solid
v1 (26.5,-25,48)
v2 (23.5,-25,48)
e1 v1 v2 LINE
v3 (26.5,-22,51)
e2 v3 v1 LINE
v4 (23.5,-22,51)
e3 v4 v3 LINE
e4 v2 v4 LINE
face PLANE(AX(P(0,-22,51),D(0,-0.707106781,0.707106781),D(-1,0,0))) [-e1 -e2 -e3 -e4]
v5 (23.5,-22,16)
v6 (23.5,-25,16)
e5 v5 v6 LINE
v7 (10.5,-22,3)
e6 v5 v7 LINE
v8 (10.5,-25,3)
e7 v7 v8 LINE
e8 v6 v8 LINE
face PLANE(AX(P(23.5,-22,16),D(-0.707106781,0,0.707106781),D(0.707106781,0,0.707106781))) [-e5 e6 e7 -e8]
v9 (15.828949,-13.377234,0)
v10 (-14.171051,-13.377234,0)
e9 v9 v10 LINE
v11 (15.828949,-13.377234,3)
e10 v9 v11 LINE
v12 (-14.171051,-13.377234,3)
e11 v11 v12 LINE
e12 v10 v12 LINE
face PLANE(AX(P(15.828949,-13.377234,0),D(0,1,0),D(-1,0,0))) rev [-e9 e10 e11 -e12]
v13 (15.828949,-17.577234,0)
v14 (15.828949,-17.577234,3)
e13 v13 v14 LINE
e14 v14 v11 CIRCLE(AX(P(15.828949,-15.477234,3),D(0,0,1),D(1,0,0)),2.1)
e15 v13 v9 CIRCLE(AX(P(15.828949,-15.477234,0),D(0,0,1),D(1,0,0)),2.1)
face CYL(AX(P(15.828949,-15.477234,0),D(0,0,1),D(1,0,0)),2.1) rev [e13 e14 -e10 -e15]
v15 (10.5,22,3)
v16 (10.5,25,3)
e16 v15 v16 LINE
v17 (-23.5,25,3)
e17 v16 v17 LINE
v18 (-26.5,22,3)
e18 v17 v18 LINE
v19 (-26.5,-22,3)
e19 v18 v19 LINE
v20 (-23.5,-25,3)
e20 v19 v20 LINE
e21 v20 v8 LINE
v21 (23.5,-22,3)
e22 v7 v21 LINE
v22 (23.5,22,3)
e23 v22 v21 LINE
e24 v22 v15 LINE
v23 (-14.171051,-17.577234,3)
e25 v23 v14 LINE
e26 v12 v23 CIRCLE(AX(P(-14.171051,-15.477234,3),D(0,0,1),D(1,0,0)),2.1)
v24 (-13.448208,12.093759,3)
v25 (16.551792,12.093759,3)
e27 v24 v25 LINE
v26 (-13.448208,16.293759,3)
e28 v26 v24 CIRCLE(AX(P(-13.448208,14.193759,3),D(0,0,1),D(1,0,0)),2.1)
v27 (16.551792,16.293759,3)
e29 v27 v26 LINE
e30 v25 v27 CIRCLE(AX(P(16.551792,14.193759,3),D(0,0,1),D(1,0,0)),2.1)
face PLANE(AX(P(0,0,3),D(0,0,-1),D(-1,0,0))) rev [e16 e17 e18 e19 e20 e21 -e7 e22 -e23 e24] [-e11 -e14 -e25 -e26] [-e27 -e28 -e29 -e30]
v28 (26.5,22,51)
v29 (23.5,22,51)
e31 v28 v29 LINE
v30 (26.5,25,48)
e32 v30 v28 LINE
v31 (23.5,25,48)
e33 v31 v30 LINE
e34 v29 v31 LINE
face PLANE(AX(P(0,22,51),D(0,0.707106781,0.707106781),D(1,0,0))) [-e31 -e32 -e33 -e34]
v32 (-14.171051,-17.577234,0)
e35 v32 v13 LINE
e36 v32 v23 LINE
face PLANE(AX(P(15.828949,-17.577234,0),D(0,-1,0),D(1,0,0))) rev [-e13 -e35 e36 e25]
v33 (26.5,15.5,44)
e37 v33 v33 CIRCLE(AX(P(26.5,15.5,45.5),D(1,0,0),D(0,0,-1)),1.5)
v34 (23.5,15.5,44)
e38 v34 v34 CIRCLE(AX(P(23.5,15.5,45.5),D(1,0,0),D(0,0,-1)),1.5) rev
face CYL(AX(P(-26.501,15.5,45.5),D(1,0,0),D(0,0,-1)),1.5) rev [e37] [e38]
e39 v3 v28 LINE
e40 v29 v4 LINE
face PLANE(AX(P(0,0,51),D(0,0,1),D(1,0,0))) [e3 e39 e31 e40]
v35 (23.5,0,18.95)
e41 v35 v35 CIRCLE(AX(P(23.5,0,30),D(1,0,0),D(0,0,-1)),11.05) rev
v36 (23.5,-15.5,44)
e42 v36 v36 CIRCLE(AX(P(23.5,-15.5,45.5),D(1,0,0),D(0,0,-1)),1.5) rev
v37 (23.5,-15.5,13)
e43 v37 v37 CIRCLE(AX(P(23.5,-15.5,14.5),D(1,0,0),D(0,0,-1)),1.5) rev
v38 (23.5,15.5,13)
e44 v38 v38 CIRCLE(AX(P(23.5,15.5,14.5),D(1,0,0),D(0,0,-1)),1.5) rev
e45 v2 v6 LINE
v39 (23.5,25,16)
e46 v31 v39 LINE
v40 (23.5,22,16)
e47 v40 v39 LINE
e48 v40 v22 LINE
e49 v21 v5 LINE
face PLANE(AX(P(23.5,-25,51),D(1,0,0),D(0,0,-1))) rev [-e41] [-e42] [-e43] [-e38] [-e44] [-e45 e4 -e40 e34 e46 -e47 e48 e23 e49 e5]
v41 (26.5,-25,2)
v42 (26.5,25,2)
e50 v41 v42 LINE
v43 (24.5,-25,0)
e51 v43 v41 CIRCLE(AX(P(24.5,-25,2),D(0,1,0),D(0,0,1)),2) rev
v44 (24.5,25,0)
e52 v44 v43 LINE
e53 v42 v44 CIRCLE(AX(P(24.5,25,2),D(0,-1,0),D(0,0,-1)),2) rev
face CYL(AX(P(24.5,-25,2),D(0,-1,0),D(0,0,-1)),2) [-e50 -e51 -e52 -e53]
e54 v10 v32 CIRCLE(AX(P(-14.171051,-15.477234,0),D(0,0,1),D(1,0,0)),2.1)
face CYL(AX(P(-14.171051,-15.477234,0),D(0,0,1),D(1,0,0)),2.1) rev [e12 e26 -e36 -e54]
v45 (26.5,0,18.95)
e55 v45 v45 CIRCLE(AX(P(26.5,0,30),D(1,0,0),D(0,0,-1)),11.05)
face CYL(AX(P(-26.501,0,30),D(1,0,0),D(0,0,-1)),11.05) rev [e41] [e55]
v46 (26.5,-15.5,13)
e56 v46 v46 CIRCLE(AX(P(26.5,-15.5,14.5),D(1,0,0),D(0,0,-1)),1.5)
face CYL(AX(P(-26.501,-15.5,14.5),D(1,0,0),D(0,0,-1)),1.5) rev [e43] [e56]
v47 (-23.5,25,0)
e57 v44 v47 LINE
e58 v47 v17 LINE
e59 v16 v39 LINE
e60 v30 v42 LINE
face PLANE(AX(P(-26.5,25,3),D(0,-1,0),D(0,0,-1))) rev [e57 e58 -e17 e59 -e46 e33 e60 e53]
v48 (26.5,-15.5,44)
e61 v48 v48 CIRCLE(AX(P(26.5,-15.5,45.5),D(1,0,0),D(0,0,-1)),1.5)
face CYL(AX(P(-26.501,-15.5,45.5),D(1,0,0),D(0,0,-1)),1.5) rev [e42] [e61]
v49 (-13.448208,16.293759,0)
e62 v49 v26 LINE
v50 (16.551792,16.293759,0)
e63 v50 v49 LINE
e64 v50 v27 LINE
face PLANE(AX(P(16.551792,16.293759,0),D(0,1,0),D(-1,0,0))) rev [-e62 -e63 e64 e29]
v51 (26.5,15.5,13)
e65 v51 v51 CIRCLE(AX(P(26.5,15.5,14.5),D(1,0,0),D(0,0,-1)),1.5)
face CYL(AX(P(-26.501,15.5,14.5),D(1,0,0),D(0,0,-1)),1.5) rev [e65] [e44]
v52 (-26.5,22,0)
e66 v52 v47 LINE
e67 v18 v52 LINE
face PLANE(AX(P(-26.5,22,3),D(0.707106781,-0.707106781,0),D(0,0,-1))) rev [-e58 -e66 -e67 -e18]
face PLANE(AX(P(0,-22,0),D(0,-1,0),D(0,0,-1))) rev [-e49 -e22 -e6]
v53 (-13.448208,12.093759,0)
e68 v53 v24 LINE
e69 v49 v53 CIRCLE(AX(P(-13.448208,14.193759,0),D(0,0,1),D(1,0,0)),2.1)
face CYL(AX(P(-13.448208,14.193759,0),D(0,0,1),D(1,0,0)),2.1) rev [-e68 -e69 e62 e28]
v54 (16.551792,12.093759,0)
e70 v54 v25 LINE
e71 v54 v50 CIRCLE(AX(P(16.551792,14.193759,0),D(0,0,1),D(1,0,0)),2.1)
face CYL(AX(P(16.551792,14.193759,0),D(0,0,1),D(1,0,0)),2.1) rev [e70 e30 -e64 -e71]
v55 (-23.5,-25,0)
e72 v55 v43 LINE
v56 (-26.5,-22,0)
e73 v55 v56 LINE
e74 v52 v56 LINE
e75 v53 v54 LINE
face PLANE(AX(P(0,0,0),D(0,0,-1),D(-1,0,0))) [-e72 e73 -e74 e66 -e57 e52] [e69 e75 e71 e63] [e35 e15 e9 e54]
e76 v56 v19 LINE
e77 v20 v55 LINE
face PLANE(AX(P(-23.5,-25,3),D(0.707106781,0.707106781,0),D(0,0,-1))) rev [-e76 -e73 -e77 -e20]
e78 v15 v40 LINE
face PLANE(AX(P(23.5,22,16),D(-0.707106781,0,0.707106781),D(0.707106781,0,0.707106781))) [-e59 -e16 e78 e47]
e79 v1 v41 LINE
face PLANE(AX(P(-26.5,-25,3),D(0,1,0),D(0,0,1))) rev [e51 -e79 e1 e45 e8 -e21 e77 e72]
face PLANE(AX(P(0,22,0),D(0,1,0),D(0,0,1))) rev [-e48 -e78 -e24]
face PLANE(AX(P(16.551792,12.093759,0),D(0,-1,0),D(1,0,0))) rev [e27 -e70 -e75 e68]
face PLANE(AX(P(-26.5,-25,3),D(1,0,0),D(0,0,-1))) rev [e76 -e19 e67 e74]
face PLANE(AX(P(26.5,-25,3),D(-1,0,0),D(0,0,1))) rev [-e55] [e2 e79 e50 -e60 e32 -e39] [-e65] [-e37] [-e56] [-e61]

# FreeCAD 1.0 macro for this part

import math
import FreeCAD as App
import Part
import Sketcher

V = App.Vector
Q = App.Units.Quantity


def edges_at(feature, points):
    """Names of the edges that pass closest to the given points."""
    edges = feature.Shape.Edges
    near = lambda p: min(range(len(edges)), key=lambda i: edges[i].distToShape(Part.Vertex(*p))[0])
    return sorted({f"Edge{near(p) + 1}" for p in points})


def add_polygon(sketch, points):
    """Adds a closed chain of lines whose ends are joined by coincident constraints."""
    first, n = sketch.GeometryCount, len(points)
    for a, b in zip(points, points[1:] + points[:1]):
        sketch.addGeometry(Part.LineSegment(App.Vector(*a, 0), App.Vector(*b, 0)), False)
    for i in range(n):
        sketch.addConstraint(Sketcher.Constraint("Coincident", first + i, 2, first + (i + 1) % n, 1))

doc = App.newDocument("Part")
body = doc.addObject("PartDesign::Body", "Body")

# Sketch on XY plane
sketch1 = body.newObject("Sketcher::SketchObject", "Sketch")
sketch1.AttachmentSupport = (doc.getObject("XY_Plane"), [""])
sketch1.MapMode = "FlatFace"
add_polygon(sketch1, [(-26.5, 25), (-26.5, -25), (26.5, -25), (26.5, 25)])  # lines 0-3
sketch1.addConstraint([
    Sketcher.Constraint("Vertical", 0),
    Sketcher.Constraint("Horizontal", 1),
    Sketcher.Constraint("Vertical", 2),
    Sketcher.Constraint("Horizontal", 3),
    Sketcher.Constraint("Symmetric", 0, 2, 2, 2, -1, 1),
    Sketcher.Constraint("DistanceX", 1, 1, 1, 2, Q("53 mm")),
    Sketcher.Constraint("DistanceY", 0, 2, 0, 1, Q("50 mm")),
])
pad1 = body.newObject("PartDesign::Pad", "Pad")
pad1.Profile = sketch1
pad1.Length = 3

# Sketch on XY plane
sketch2 = body.newObject("Sketcher::SketchObject", "Sketch001")
sketch2.AttachmentSupport = (doc.getObject("XY_Plane"), [""])
sketch2.MapMode = "FlatFace"
sketch2.AttachmentOffset = App.Placement(V(0, 0, 3), App.Rotation())
add_polygon(sketch2, [(23.5, 25), (23.5, -25), (26.5, -25), (26.5, 25)])  # lines 0-3
sketch2.addConstraint([
    Sketcher.Constraint("Vertical", 0),
    Sketcher.Constraint("Horizontal", 1),
    Sketcher.Constraint("Vertical", 2),
    Sketcher.Constraint("Horizontal", 3),
    Sketcher.Constraint("DistanceX", 1, 1, 1, 2, Q("3 mm")),
    Sketcher.Constraint("DistanceY", 0, 2, 0, 1, Q("50 mm")),
    Sketcher.Constraint("DistanceY", 0, 2, -1, 1, Q("25 mm")),
    Sketcher.Constraint("DistanceX", -1, 1, 0, 2, Q("23.5 mm")),
])
pad2 = body.newObject("PartDesign::Pad", "Pad001")
pad2.Profile = sketch2
pad2.Length = 48
doc.recompute()

fillet = body.newObject("PartDesign::Fillet", "Fillet")
fillet.Base = (pad2, edges_at(pad2, [(26.5, 0, 0)]))
fillet.Radius = 2
doc.recompute()

chamfer = body.newObject("PartDesign::Chamfer", "Chamfer")
chamfer.Base = (fillet, edges_at(fillet, [(25, -25, 51), (-26.5, -25, 1.5), (-26.5, 25, 1.5)]))
chamfer.Size = 3
doc.recompute()

chamfer2 = body.newObject("PartDesign::Chamfer", "Chamfer001")
chamfer2.Base = (chamfer, edges_at(chamfer, [(25, 25, 51)]))
chamfer2.Size = 3

# Sketch on YZ plane
sketch3 = body.newObject("Sketcher::SketchObject", "Sketch002")
sketch3.AttachmentSupport = (doc.getObject("YZ_Plane"), [""])
sketch3.MapMode = "FlatFace"
sketch3.AttachmentOffset = App.Placement(V(0, 0, 26.5), App.Rotation())
sketch3.addGeometry(Part.Circle(V(0, 30, 0), V(0, 0, 1), 11.05), False)
sketch3.addConstraint([
    Sketcher.Constraint("PointOnObject", 0, 3, -2),
    Sketcher.Constraint("Diameter", 0, Q("22.1 mm")),
    Sketcher.Constraint("DistanceY", -1, 1, 0, 3, Q("30 mm")),
])
pocket1 = body.newObject("PartDesign::Pocket", "Pocket")
pocket1.Profile = sketch3
pocket1.Type = "UpToFirst"

# Sketch on YZ plane
sketch4 = body.newObject("Sketcher::SketchObject", "Sketch003")
sketch4.AttachmentSupport = (doc.getObject("YZ_Plane"), [""])
sketch4.MapMode = "FlatFace"
sketch4.AttachmentOffset = App.Placement(V(0, 0, 26.5), App.Rotation())
sketch4.addGeometry(Part.Circle(V(15.5, 45.5, 0), V(0, 0, 1), 1.5), False)
sketch4.addConstraint([
    Sketcher.Constraint("Diameter", 0, Q("3 mm")),
    Sketcher.Constraint("DistanceX", -1, 1, 0, 3, Q("15.5 mm")),
    Sketcher.Constraint("DistanceY", -1, 1, 0, 3, Q("45.5 mm")),
])
pocket2 = body.newObject("PartDesign::Pocket", "Pocket001")
pocket2.Profile = sketch4
pocket2.Type = "UpToFirst"

# Sketch on YZ plane
sketch5 = body.newObject("Sketcher::SketchObject", "Sketch004")
sketch5.AttachmentSupport = (doc.getObject("YZ_Plane"), [""])
sketch5.MapMode = "FlatFace"
sketch5.AttachmentOffset = App.Placement(V(0, 0, 26.5), App.Rotation())
sketch5.addGeometry(Part.Circle(V(-15.5, 45.5, 0), V(0, 0, 1), 1.5), False)
sketch5.addConstraint([
    Sketcher.Constraint("Diameter", 0, Q("3 mm")),
    Sketcher.Constraint("DistanceX", 0, 3, -1, 1, Q("15.5 mm")),
    Sketcher.Constraint("DistanceY", -1, 1, 0, 3, Q("45.5 mm")),
])
pocket3 = body.newObject("PartDesign::Pocket", "Pocket002")
pocket3.Profile = sketch5
pocket3.Type = "UpToFirst"

# Sketch on YZ plane
sketch6 = body.newObject("Sketcher::SketchObject", "Sketch005")
sketch6.AttachmentSupport = (doc.getObject("YZ_Plane"), [""])
sketch6.MapMode = "FlatFace"
sketch6.AttachmentOffset = App.Placement(V(0, 0, 26.5), App.Rotation())
sketch6.addGeometry(Part.Circle(V(-15.5, 14.5, 0), V(0, 0, 1), 1.5), False)
sketch6.addConstraint([
    Sketcher.Constraint("Diameter", 0, Q("3 mm")),
    Sketcher.Constraint("DistanceX", 0, 3, -1, 1, Q("15.5 mm")),
    Sketcher.Constraint("DistanceY", -1, 1, 0, 3, Q("14.5 mm")),
])
pocket4 = body.newObject("PartDesign::Pocket", "Pocket003")
pocket4.Profile = sketch6
pocket4.Type = "UpToFirst"

# Sketch on YZ plane
sketch7 = body.newObject("Sketcher::SketchObject", "Sketch006")
sketch7.AttachmentSupport = (doc.getObject("YZ_Plane"), [""])
sketch7.MapMode = "FlatFace"
sketch7.AttachmentOffset = App.Placement(V(0, 0, 26.5), App.Rotation())
sketch7.addGeometry(Part.Circle(V(15.5, 14.5, 0), V(0, 0, 1), 1.5), False)
sketch7.addConstraint([
    Sketcher.Constraint("Diameter", 0, Q("3 mm")),
    Sketcher.Constraint("DistanceX", -1, 1, 0, 3, Q("15.5 mm")),
    Sketcher.Constraint("DistanceY", -1, 1, 0, 3, Q("14.5 mm")),
])
pocket5 = body.newObject("PartDesign::Pocket", "Pocket004")
pocket5.Profile = sketch7
pocket5.Type = "UpToFirst"

# Sketch on XZ plane
sketch8 = body.newObject("Sketcher::SketchObject", "Sketch007")
sketch8.AttachmentSupport = (doc.getObject("XZ_Plane"), [""])
sketch8.MapMode = "FlatFace"
sketch8.AttachmentOffset = App.Placement(V(0, 0, -25), App.Rotation())
add_polygon(sketch8, [(10.5, 3), (23.5, 16), (23.5, 3)])  # lines 0-2
sketch8.addConstraint([
    Sketcher.Constraint("Vertical", 1),
    Sketcher.Constraint("Horizontal", 2),
    Sketcher.Constraint("Equal", 2, 1),
    Sketcher.Constraint("DistanceX", 2, 2, 2, 1, Q("13 mm")),
    Sketcher.Constraint("DistanceY", -1, 1, 0, 2, Q("16 mm")),
    Sketcher.Constraint("DistanceX", -1, 1, 0, 2, Q("23.5 mm")),
])
pad3 = body.newObject("PartDesign::Pad", "Pad002")
pad3.Profile = sketch8
pad3.Length = 3

# Sketch on XZ plane
sketch9 = body.newObject("Sketcher::SketchObject", "Sketch008")
sketch9.AttachmentSupport = (doc.getObject("XZ_Plane"), [""])
sketch9.MapMode = "FlatFace"
sketch9.AttachmentOffset = App.Placement(V(0, 0, 25), App.Rotation())
add_polygon(sketch9, [(23.5, 3), (23.5, 16), (10.5, 3)])  # lines 0-2
sketch9.addConstraint([
    Sketcher.Constraint("Vertical", 0),
    Sketcher.Constraint("Horizontal", 2),
    Sketcher.Constraint("Equal", 2, 0),
    Sketcher.Constraint("DistanceX", 2, 1, 2, 2, Q("13 mm")),
    Sketcher.Constraint("DistanceY", -1, 1, 0, 2, Q("16 mm")),
    Sketcher.Constraint("DistanceX", -1, 1, 0, 2, Q("23.5 mm")),
])
pad4 = body.newObject("PartDesign::Pad", "Pad003")
pad4.Profile = sketch9
pad4.Length = 3
pad4.Reversed = True

# Sketch on XY plane
sketch10 = body.newObject("Sketcher::SketchObject", "Sketch009")
sketch10.AttachmentSupport = (doc.getObject("XY_Plane"), [""])
sketch10.MapMode = "FlatFace"
sketch10.AttachmentOffset = App.Placement(V(0, 0, 3), App.Rotation())
sketch10.addGeometry([
    Part.LineSegment(V(-13.448208, 12.093759, 0), V(16.551792, 12.093759, 0)),  # 0
    Part.ArcOfCircle(Part.Circle(V(16.551792, 14.193759, 0), V(0, 0, 1), 2.1), math.radians(-90), math.radians(90)),  # 1
    Part.LineSegment(V(16.551792, 16.293759, 0), V(-13.448208, 16.293759, 0)),  # 2
    Part.ArcOfCircle(Part.Circle(V(-13.448208, 14.193759, 0), V(0, 0, 1), 2.1), math.radians(90), math.radians(270)),  # 3
    Part.LineSegment(V(-14.171051, -17.577234, 0), V(15.828949, -17.577234, 0)),  # 4
    Part.ArcOfCircle(Part.Circle(V(15.828949, -15.477234, 0), V(0, 0, 1), 2.1), math.radians(-90), math.radians(90)),  # 5
    Part.LineSegment(V(15.828949, -13.377234, 0), V(-14.171051, -13.377234, 0)),  # 6
    Part.ArcOfCircle(Part.Circle(V(-14.171051, -15.477234, 0), V(0, 0, 1), 2.1), math.radians(90), math.radians(270)),  # 7
], False)
sketch10.addConstraint([
    Sketcher.Constraint("Tangent", 0, 2, 1, 1),
    Sketcher.Constraint("Tangent", 1, 2, 2, 1),
    Sketcher.Constraint("Tangent", 2, 2, 3, 1),
    Sketcher.Constraint("Tangent", 3, 2, 0, 1),
    Sketcher.Constraint("Tangent", 4, 2, 5, 1),
    Sketcher.Constraint("Tangent", 5, 2, 6, 1),
    Sketcher.Constraint("Tangent", 6, 2, 7, 1),
    Sketcher.Constraint("Tangent", 7, 2, 4, 1),
    Sketcher.Constraint("Horizontal", 0),
    Sketcher.Constraint("Horizontal", 2),
    Sketcher.Constraint("Horizontal", 4),
    Sketcher.Constraint("Horizontal", 6),
    Sketcher.Constraint("Equal", 3, 5),
    Sketcher.Constraint("Equal", 2, 4),
    Sketcher.Constraint("Radius", 1, Q("2.1 mm")),
    Sketcher.Constraint("DistanceX", 0, 1, 0, 2, Q("30 mm")),
    Sketcher.Constraint("DistanceY", -1, 1, 1, 3, Q("14.193759 mm")),
    Sketcher.Constraint("DistanceX", -1, 1, 5, 3, Q("15.828949 mm")),
    Sketcher.Constraint("DistanceX", -1, 1, 1, 3, Q("16.551792 mm")),
    Sketcher.Constraint("DistanceY", 5, 3, -1, 1, Q("15.477234 mm")),
])
pocket6 = body.newObject("PartDesign::Pocket", "Pocket005")
pocket6.Profile = sketch10
pocket6.Length = 3

doc.recompute()
